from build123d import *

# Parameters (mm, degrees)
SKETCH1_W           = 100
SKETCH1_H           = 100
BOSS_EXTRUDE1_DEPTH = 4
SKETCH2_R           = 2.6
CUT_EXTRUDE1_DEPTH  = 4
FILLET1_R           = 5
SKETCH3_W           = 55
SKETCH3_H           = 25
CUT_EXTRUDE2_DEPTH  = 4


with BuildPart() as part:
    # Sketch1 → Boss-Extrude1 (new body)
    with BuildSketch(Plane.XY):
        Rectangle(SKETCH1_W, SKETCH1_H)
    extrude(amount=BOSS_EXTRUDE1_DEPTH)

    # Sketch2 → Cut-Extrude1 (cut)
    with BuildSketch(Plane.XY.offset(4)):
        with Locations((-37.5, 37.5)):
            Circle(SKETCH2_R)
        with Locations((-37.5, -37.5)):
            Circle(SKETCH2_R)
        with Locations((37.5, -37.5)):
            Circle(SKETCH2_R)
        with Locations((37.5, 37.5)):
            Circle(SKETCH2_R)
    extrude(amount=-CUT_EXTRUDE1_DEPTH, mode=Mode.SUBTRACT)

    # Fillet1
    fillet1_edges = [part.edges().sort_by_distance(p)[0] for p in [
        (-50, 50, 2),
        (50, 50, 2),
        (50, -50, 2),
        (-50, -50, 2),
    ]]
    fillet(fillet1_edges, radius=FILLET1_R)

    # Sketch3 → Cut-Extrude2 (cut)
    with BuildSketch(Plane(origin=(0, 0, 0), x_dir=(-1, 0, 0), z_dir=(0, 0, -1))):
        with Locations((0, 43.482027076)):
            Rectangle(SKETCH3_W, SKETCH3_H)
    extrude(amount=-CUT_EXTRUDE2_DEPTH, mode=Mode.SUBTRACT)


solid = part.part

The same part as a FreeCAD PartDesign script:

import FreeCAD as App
import Part
import Sketcher
Q = App.Units.Quantity


def edges_at(feature, points):
    """Names of the edges that pass closest to the given points."""
    edges = feature.Shape.Edges
    near = lambda p: min(range(len(edges)), key=lambda i: edges[i].distToShape(Part.Vertex(*p))[0])
    return sorted({f"Edge{near(p) + 1}" for p in points})

doc = App.newDocument("Part")
body = doc.addObject("PartDesign::Body", "Body")

# Sketch on XY plane
sketch1 = body.newObject("Sketcher::SketchObject", "Sketch")
sketch1.AttachmentSupport = (doc.getObject("XY_Plane"), [""])
sketch1.MapMode = "FlatFace"
sketch1.addGeometry(Part.LineSegment(App.Vector(-50, 50, 0), App.Vector(-50, -50, 0)), False)
sketch1.addGeometry(Part.LineSegment(App.Vector(-50, -50, 0), App.Vector(50, -50, 0)), False)
sketch1.addGeometry(Part.LineSegment(App.Vector(50, -50, 0), App.Vector(50, 50, 0)), False)
sketch1.addGeometry(Part.LineSegment(App.Vector(50, 50, 0), App.Vector(-50, 50, 0)), False)
sketch1.addConstraint(Sketcher.Constraint("Coincident", 0, 2, 1, 1))
sketch1.addConstraint(Sketcher.Constraint("Coincident", 1, 2, 2, 1))
sketch1.addConstraint(Sketcher.Constraint("Coincident", 2, 2, 3, 1))
sketch1.addConstraint(Sketcher.Constraint("Coincident", 3, 2, 0, 1))
sketch1.addConstraint(Sketcher.Constraint("Vertical", 0))
sketch1.addConstraint(Sketcher.Constraint("Horizontal", 1))
sketch1.addConstraint(Sketcher.Constraint("Vertical", 2))
sketch1.addConstraint(Sketcher.Constraint("Horizontal", 3))
sketch1.addConstraint(Sketcher.Constraint("Symmetric", 0, 2, 2, 2, -1, 1))
sketch1.addConstraint(Sketcher.Constraint("Equal", 3, 0))
sketch1.addConstraint(Sketcher.Constraint("DistanceX", 1, 1, 1, 2, Q("100 mm")))
pad1 = body.newObject("PartDesign::Pad", "Pad")
pad1.Profile = sketch1
pad1.Length = 4

# Sketch on XY plane
sketch2 = body.newObject("Sketcher::SketchObject", "Sketch001")
sketch2.AttachmentSupport = (doc.getObject("XY_Plane"), [""])
sketch2.MapMode = "FlatFace"
sketch2.AttachmentOffset = App.Placement(App.Vector(0, 0, 4), App.Rotation())
sketch2.addGeometry(Part.Circle(App.Vector(-37.5, 37.5, 0), App.Vector(0, 0, 1), 2.6), False)
sketch2.addGeometry(Part.Circle(App.Vector(-37.5, -37.5, 0), App.Vector(0, 0, 1), 2.6), False)
sketch2.addGeometry(Part.Circle(App.Vector(37.5, -37.5, 0), App.Vector(0, 0, 1), 2.6), False)
sketch2.addGeometry(Part.Circle(App.Vector(37.5, 37.5, 0), App.Vector(0, 0, 1), 2.6), False)
sketch2.addConstraint(Sketcher.Constraint("Equal", 0, 1))
sketch2.addConstraint(Sketcher.Constraint("Equal", 1, 2))
sketch2.addConstraint(Sketcher.Constraint("Equal", 2, 3))
sketch2.addConstraint(Sketcher.Constraint("Symmetric", 0, 3, 2, 3, -1, 1))
sketch2.addConstraint(Sketcher.Constraint("Symmetric", 1, 3, 3, 3, -1, 1))
sketch2.addConstraint(Sketcher.Constraint("Symmetric", 1, 3, 2, 3, -2))
sketch2.addConstraint(Sketcher.Constraint("Diameter", 0, Q("5.2 mm")))
sketch2.addConstraint(Sketcher.Constraint("DistanceY", 1, 3, 0, 3, Q("75 mm")))
sketch2.addConstraint(Sketcher.Constraint("DistanceX", 1, 3, 2, 3, Q("75 mm")))
pocket1 = body.newObject("PartDesign::Pocket", "Pocket")
pocket1.Profile = sketch2
pocket1.Length = 4
doc.recompute()

fillet = body.newObject("PartDesign::Fillet", "Fillet")
fillet.Base = (pocket1, edges_at(pocket1, [
    (-50, 50, 2),
    (50, 50, 2),
    (50, -50, 2),
    (-50, -50, 2),
]))
fillet.Radius = 5

# Sketch on XY plane
sketch3 = body.newObject("Sketcher::SketchObject", "Sketch002")
sketch3.AttachmentSupport = (doc.getObject("XY_Plane"), [""])
sketch3.MapMode = "FlatFace"
sketch3.addGeometry(Part.LineSegment(App.Vector(28, 56, 0), App.Vector(28, 31, 0)), False)
sketch3.addGeometry(Part.LineSegment(App.Vector(28, 31, 0), App.Vector(-28, 31, 0)), False)
sketch3.addGeometry(Part.LineSegment(App.Vector(-28, 31, 0), App.Vector(-28, 56, 0)), False)
sketch3.addGeometry(Part.LineSegment(App.Vector(-28, 56, 0), App.Vector(28, 56, 0)), False)
sketch3.addConstraint(Sketcher.Constraint("Coincident", 0, 2, 1, 1))
sketch3.addConstraint(Sketcher.Constraint("Coincident", 1, 2, 2, 1))
sketch3.addConstraint(Sketcher.Constraint("Coincident", 2, 2, 3, 1))
sketch3.addConstraint(Sketcher.Constraint("Coincident", 3, 2, 0, 1))
sketch3.addConstraint(Sketcher.Constraint("Vertical", 0))
sketch3.addConstraint(Sketcher.Constraint("Horizontal", 1))
sketch3.addConstraint(Sketcher.Constraint("Vertical", 2))
sketch3.addConstraint(Sketcher.Constraint("Horizontal", 3))
sketch3.addConstraint(Sketcher.Constraint("DistanceX", 1, 2, 1, 1, Q("55 mm")))
sketch3.addConstraint(Sketcher.Constraint("DistanceY", 0, 2, 0, 1, Q("25 mm")))
sketch3.addConstraint(Sketcher.Constraint("DistanceX", -1, 1, 0, 2, Q("27.5 mm")))
sketch3.addConstraint(Sketcher.Constraint("DistanceY", -1, 1, 0, 2, Q("30.982027 mm")))
pocket2 = body.newObject("PartDesign::Pocket", "Pocket001")
pocket2.Profile = sketch3
pocket2.Length = 4
pocket2.Reversed = True

doc.recompute()
